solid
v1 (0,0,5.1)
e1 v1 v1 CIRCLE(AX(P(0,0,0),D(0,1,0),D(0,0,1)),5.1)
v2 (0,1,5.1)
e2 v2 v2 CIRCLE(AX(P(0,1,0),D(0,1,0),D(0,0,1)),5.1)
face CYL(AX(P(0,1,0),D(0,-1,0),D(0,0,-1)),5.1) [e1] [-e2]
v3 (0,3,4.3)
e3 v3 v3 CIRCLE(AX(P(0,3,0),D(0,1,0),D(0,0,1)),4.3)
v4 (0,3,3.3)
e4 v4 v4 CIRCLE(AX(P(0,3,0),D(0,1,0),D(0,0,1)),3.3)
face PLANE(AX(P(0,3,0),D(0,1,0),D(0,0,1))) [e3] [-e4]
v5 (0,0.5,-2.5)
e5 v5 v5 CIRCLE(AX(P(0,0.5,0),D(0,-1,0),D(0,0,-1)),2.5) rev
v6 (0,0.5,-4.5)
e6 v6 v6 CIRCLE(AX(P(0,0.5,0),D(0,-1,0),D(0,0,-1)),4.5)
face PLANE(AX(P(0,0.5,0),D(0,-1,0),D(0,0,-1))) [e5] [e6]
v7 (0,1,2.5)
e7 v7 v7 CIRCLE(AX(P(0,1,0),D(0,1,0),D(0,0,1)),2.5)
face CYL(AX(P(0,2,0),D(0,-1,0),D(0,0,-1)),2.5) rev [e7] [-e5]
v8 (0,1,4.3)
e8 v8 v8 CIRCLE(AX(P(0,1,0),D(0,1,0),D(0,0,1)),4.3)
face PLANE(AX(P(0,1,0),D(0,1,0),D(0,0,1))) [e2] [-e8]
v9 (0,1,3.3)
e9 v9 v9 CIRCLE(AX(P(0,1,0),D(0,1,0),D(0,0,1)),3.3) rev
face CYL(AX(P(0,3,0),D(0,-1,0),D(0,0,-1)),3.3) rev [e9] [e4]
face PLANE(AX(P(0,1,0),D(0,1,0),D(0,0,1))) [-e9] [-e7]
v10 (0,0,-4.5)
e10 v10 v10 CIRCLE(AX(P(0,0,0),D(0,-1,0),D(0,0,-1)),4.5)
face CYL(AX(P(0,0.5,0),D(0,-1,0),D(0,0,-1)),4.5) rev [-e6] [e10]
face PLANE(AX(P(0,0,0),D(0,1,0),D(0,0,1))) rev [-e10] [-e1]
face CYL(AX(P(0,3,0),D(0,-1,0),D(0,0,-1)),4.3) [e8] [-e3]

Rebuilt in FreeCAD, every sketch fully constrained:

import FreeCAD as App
import Part
import Sketcher

V = App.Vector
Q = App.Units.Quantity

doc = App.newDocument("Part")
body = doc.addObject("PartDesign::Body", "Body")

# Sketch on XZ plane
sketch1 = body.newObject("Sketcher::SketchObject", "Sketch")
sketch1.AttachmentSupport = (doc.getObject("XZ_Plane"), [""])
sketch1.MapMode = "FlatFace"
sketch1.addGeometry(Part.Circle(V(0, 0, 0), V(0, 0, 1), 5), False)
sketch1.addConstraint([
    Sketcher.Constraint("Coincident", 0, 3, -1, 1),
    Sketcher.Constraint("Diameter", 0, Q("10.2 mm")),
])
pad1 = body.newObject("PartDesign::Pad", "Pad")
pad1.Profile = sketch1
pad1.Length = 1
pad1.Reversed = True

# Sketch on XZ plane
sketch2 = body.newObject("Sketcher::SketchObject", "Sketch001")
sketch2.AttachmentSupport = (doc.getObject("XZ_Plane"), [""])
sketch2.MapMode = "FlatFace"
sketch2.AttachmentOffset = App.Placement(V(0, 0, -1), App.Rotation())
sketch2.addGeometry([
    Part.Circle(V(0, 0, 0), V(0, 0, 1), 4.3),
    Part.Circle(V(0, 0, 0), V(0, 0, 1), 3.3),
], False)
sketch2.addConstraint([
    Sketcher.Constraint("Coincident", 0, 3, -1, 1),
    Sketcher.Constraint("Coincident", 1, 3, -1, 1),
    Sketcher.Constraint("Diameter", 0, Q("8.6 mm")),
    Sketcher.Constraint("Diameter", 1, Q("6.6 mm")),
])
pad2 = body.newObject("PartDesign::Pad", "Pad001")
pad2.Profile = sketch2
pad2.Length = 2
pad2.Reversed = True

# Sketch on XZ plane
sketch3 = body.newObject("Sketcher::SketchObject", "Sketch002")
sketch3.AttachmentSupport = (doc.getObject("XZ_Plane"), [""])
sketch3.MapMode = "FlatFace"
sketch3.addGeometry(Part.Circle(V(0, 0, 0), V(0, 0, 1), 2.5), False)
sketch3.addConstraint([
    Sketcher.Constraint("Coincident", 0, 3, -1, 1),
    Sketcher.Constraint("Diameter", 0, Q("5 mm")),
])
pocket1 = body.newObject("PartDesign::Pocket", "Pocket")
pocket1.Profile = sketch3
pocket1.Length = 2

# Sketch on XZ plane
sketch4 = body.newObject("Sketcher::SketchObject", "Sketch003")
sketch4.AttachmentSupport = (doc.getObject("XZ_Plane"), [""])
sketch4.MapMode = "FlatFace"
sketch4.addGeometry(Part.Circle(V(0, 0, 0), V(0, 0, 1), 4.5), False)
sketch4.addConstraint([
    Sketcher.Constraint("Coincident", 0, 3, -1, 1),
    Sketcher.Constraint("Diameter", 0, Q("9 mm")),
])
pocket2 = body.newObject("PartDesign::Pocket", "Pocket001")
pocket2.Profile = sketch4
pocket2.Length = 0.5

doc.recompute()
